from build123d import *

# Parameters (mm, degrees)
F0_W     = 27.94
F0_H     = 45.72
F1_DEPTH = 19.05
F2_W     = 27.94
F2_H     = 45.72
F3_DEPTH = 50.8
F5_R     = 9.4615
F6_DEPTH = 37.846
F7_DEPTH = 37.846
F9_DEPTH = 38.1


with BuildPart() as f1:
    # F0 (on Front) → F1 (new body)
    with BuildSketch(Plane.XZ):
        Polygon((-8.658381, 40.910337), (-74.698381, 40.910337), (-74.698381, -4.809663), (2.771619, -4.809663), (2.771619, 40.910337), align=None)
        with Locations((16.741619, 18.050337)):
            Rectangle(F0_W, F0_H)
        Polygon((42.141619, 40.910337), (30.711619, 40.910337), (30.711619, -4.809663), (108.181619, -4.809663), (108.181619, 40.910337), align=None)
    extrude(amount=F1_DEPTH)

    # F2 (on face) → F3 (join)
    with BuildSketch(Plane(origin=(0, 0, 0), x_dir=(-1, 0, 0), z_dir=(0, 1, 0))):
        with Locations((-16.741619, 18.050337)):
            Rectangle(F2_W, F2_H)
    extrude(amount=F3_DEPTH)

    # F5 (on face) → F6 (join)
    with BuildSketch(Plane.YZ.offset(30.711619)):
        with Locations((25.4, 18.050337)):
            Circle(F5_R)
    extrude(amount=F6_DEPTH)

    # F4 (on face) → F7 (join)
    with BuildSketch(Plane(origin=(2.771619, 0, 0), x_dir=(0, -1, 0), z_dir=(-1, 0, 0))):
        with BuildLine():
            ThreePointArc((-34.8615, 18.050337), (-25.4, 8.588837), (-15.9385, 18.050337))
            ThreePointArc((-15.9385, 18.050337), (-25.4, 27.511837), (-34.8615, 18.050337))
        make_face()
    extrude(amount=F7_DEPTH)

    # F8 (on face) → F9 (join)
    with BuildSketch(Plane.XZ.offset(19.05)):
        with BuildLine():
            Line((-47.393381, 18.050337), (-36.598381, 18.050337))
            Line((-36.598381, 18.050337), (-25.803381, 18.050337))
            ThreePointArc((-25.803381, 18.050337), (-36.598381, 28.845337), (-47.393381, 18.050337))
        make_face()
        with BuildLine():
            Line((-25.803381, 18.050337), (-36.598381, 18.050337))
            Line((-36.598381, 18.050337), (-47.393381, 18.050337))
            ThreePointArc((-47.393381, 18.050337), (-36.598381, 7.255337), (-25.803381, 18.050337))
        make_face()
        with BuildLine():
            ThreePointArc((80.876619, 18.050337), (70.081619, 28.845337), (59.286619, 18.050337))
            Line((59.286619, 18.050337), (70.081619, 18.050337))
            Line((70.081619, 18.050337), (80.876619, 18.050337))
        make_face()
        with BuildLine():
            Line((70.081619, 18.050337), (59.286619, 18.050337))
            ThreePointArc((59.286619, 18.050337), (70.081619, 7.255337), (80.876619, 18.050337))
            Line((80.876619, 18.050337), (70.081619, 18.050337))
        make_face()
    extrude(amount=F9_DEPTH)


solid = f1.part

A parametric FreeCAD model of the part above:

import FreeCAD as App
import Part
import Sketcher

V = App.Vector
Q = App.Units.Quantity


def add_polygon(sketch, points):
    """Adds a closed chain of lines whose ends are joined by coincident constraints."""
    first, n = sketch.GeometryCount, len(points)
    for a, b in zip(points, points[1:] + points[:1]):
        sketch.addGeometry(Part.LineSegment(App.Vector(*a, 0), App.Vector(*b, 0)), False)
    for i in range(n):
        sketch.addConstraint(Sketcher.Constraint("Coincident", first + i, 2, first + (i + 1) % n, 1))

doc = App.newDocument("Part")
body = doc.addObject("PartDesign::Body", "Body")

# Sketch on XZ plane
sketch1 = body.newObject("Sketcher::SketchObject", "Sketch")
sketch1.AttachmentSupport = (doc.getObject("XZ_Plane"), [""])
sketch1.MapMode = "FlatFace"
add_polygon(sketch1, [(-75, 41), (-75, -5), (108, -5), (108, 41)])  # lines 0-3
sketch1.addConstraint([
    Sketcher.Constraint("Vertical", 0),
    Sketcher.Constraint("Horizontal", 1),
    Sketcher.Constraint("Vertical", 2),
    Sketcher.Constraint("Horizontal", 3),
    Sketcher.Constraint("DistanceX", 1, 1, 1, 2, Q("7.2 in")),
    Sketcher.Constraint("DistanceY", 0, 2, 0, 1, Q("1.8 in")),
    Sketcher.Constraint("DistanceX", 0, 2, -1, 1, Q("74.698381 mm")),
    Sketcher.Constraint("DistanceY", 0, 2, -1, 1, Q("4.809663 mm")),
])
pad1 = body.newObject("PartDesign::Pad", "Pad")
pad1.Profile = sketch1
pad1.Length = Q("0.75 in")

# Sketch on XZ plane
sketch2 = body.newObject("Sketcher::SketchObject", "Sketch001")
sketch2.AttachmentSupport = (doc.getObject("XZ_Plane"), [""])
sketch2.MapMode = "FlatFace"
add_polygon(sketch2, [(31, 41), (31, -5), (3, -5), (3, 41)])  # lines 0-3
sketch2.addConstraint([
    Sketcher.Constraint("Vertical", 0),
    Sketcher.Constraint("Horizontal", 1),
    Sketcher.Constraint("Vertical", 2),
    Sketcher.Constraint("Horizontal", 3),
    Sketcher.Constraint("DistanceX", 1, 2, 1, 1, Q("1.1 in")),
    Sketcher.Constraint("DistanceY", 0, 2, 0, 1, Q("1.8 in")),
    Sketcher.Constraint("DistanceX", -1, 1, 0, 2, Q("30.711619 mm")),
    Sketcher.Constraint("DistanceY", 0, 2, -1, 1, Q("4.809663 mm")),
])
pad2 = body.newObject("PartDesign::Pad", "Pad001")
pad2.Profile = sketch2
pad2.Length = Q("2 in")
pad2.Reversed = True

# Sketch on YZ plane
sketch3 = body.newObject("Sketcher::SketchObject", "Sketch002")
sketch3.AttachmentSupport = (doc.getObject("YZ_Plane"), [""])
sketch3.MapMode = "FlatFace"
sketch3.AttachmentOffset = App.Placement(V(0, 0, 30.711619), App.Rotation())
sketch3.addGeometry(Part.Circle(V(25, 18, 0), V(0, 0, 1), 9), False)
sketch3.addConstraint([
    Sketcher.Constraint("Diameter", 0, Q("0.745 in")),
    Sketcher.Constraint("DistanceX", -1, 1, 0, 3, Q("1 in")),
    Sketcher.Constraint("DistanceY", -1, 1, 0, 3, Q("18.050337 mm")),
])
pad3 = body.newObject("PartDesign::Pad", "Pad002")
pad3.Profile = sketch3
pad3.Length = Q("1.49 in")

# Sketch on YZ plane
sketch4 = body.newObject("Sketcher::SketchObject", "Sketch003")
sketch4.AttachmentSupport = (doc.getObject("YZ_Plane"), [""])
sketch4.MapMode = "FlatFace"
sketch4.AttachmentOffset = App.Placement(V(0, 0, 2.771619), App.Rotation())
sketch4.addGeometry(Part.Circle(V(25, 18, 0), V(0, 0, 1), 9), False)
sketch4.addConstraint([
    Sketcher.Constraint("Diameter", 0, Q("0.745 in")),
    Sketcher.Constraint("DistanceX", -1, 1, 0, 3, Q("1 in")),
    Sketcher.Constraint("DistanceY", -1, 1, 0, 3, Q("18.050337 mm")),
])
pad4 = body.newObject("PartDesign::Pad", "Pad003")
pad4.Profile = sketch4
pad4.Length = Q("1.49 in")
pad4.Reversed = True

# Sketch on XZ plane
sketch5 = body.newObject("Sketcher::SketchObject", "Sketch004")
sketch5.AttachmentSupport = (doc.getObject("XZ_Plane"), [""])
sketch5.MapMode = "FlatFace"
sketch5.AttachmentOffset = App.Placement(V(0, 0, 0.75 * 25.4), App.Rotation())
sketch5.addGeometry([
    Part.Circle(V(-37, 18, 0), V(0, 0, 1), 11),
    Part.Circle(V(70, 18, 0), V(0, 0, 1), 11),
], False)
sketch5.addConstraint([
    Sketcher.Constraint("Equal", 0, 1),
    Sketcher.Constraint("Horizontal", 0, 3, 1, 3),
    Sketcher.Constraint("Diameter", 0, Q("0.85 in")),
    Sketcher.Constraint("DistanceX", 0, 3, 1, 3, Q("4.2 in")),
    Sketcher.Constraint("DistanceX", 0, 3, -1, 1, Q("36.598381 mm")),
    Sketcher.Constraint("DistanceY", -1, 1, 0, 3, Q("18.050337 mm")),
])
pad5 = body.newObject("PartDesign::Pad", "Pad004")
pad5.Profile = sketch5
pad5.Length = Q("1.5 in")

doc.recompute()
